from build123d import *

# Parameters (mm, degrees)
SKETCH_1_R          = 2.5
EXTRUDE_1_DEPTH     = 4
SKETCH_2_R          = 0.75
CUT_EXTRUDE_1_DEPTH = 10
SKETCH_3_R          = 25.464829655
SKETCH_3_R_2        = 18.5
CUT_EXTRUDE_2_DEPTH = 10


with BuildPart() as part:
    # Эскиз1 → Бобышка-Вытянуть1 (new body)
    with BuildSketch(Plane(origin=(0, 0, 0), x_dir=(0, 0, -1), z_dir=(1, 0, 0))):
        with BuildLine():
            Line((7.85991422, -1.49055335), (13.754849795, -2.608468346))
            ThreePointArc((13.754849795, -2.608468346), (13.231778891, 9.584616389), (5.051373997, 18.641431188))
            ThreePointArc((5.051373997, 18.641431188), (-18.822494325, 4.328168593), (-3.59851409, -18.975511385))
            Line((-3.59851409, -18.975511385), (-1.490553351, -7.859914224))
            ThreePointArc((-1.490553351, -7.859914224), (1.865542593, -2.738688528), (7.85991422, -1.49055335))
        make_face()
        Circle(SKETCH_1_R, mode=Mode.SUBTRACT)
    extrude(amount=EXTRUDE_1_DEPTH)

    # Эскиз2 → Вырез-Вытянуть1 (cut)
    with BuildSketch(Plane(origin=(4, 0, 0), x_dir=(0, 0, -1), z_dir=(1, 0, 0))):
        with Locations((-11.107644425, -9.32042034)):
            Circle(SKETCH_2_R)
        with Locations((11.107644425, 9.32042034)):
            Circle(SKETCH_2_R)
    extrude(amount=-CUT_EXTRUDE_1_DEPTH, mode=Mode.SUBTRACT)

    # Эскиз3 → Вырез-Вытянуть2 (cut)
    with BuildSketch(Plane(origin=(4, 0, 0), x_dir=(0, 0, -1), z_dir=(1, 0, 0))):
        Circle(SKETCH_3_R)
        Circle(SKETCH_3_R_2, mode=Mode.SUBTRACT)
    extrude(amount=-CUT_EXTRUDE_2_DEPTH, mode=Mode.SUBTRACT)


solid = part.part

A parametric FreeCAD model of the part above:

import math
import FreeCAD as App
import Part
import Sketcher
from FreeCAD import Vector
Q = App.Units.Quantity

doc = App.newDocument("Part")
body = doc.addObject("PartDesign::Body", "Body")

# Sketch on YZ plane
sketch1 = doc.addObject("Sketcher::SketchObject", "Sketch")
body.addObject(sketch1)
sketch1.AttachmentSupport = (doc.YZ_Plane, [""])
sketch1.MapMode = "FlatFace"
sketch1.addGeometry(Part.LineSegment(Vector(-1.490553, -7.859914, 0), Vector(-2.608468, -13.75485, 0)), False)
sketch1.addGeometry(Part.ArcOfCircle(Part.Circle(Vector(2.762286, 3.425226, 0), Vector(0, 0, 1), 18), math.radians(-107.360042), math.radians(-28.094176)), False)
sketch1.addGeometry(Part.ArcOfCircle(Part.Circle(Vector(0, 0, 0), Vector(0, 0, 1), 19.313708), math.radians(-15.161665), math.radians(169.261948)), False)
sketch1.addGeometry(Part.LineSegment(Vector(-18.975511, 3.598514, 0), Vector(-7.859914, 1.490553, 0)), False)
sketch1.addGeometry(Part.ArcOfCircle(Part.Circle(Vector(-9.350468, -6.369361, 0), Vector(0, 0, 1), 8), math.radians(-10.738053), math.radians(79.261948)), False)
sketch1.addGeometry(Part.Circle(Vector(0, 0, 0), Vector(0, 0, 1), 2.5), False)
sketch1.addConstraint(Sketcher.Constraint("Coincident", 0, 2, 1, 1))
sketch1.addConstraint(Sketcher.Constraint("Coincident", 1, 2, 2, 1))
sketch1.addConstraint(Sketcher.Constraint("Coincident", 2, 2, 3, 1))
sketch1.addConstraint(Sketcher.Constraint("Tangent", 3, 2, 4, 2))
sketch1.addConstraint(Sketcher.Constraint("Tangent", 4, 1, 0, 1))
sketch1.addConstraint(Sketcher.Constraint("Coincident", 2, 3, -1, 1))
sketch1.addConstraint(Sketcher.Constraint("Coincident", 5, 3, -1, 1))
sketch1.addConstraint(Sketcher.Constraint("Perpendicular", 0, 3))
sketch1.addConstraint(Sketcher.Constraint("Diameter", 5, Q("5 mm")))
sketch1.addConstraint(Sketcher.Constraint("Radius", 1, Q("18 mm")))
sketch1.addConstraint(Sketcher.Constraint("Radius", 4, Q("8 mm")))
sketch1.addConstraint(Sketcher.Constraint("Distance", 0, Q("6 mm")))
sketch1.addConstraint(Sketcher.Constraint("Radius", 2, Q("19.313708 mm")))
sketch1.addConstraint(Sketcher.Constraint("DistanceX", 4, 3, 0, 2, Q("6.741999 mm")))
sketch1.addConstraint(Sketcher.Constraint("DistanceY", 1, 2, 1, 3, Q("8.4766 mm")))
sketch1.addConstraint(Sketcher.Constraint("DistanceX", 0, 2, 1, 2, Q("21.2499 mm")))
sketch1.addConstraint(Sketcher.Constraint("Distance", 3, Q("11.313708 mm")))
pad1 = doc.addObject("PartDesign::Pad", "Pad")
body.addObject(pad1)
pad1.Profile = sketch1
pad1.Length = 4

# Sketch on YZ plane
sketch2 = doc.addObject("Sketcher::SketchObject", "Sketch001")
body.addObject(sketch2)
sketch2.AttachmentSupport = (doc.YZ_Plane, [""])
sketch2.MapMode = "FlatFace"
sketch2.AttachmentOffset = App.Placement(Vector(0, 0, 4), App.Rotation())
sketch2.addGeometry(Part.Circle(Vector(-9.32042, 11.107644, 0), Vector(0, 0, 1), 0.75), False)
sketch2.addGeometry(Part.Circle(Vector(9.32042, -11.107644, 0), Vector(0, 0, 1), 0.75), False)
sketch2.addConstraint(Sketcher.Constraint("Equal", 0, 1))
sketch2.addConstraint(Sketcher.Constraint("Symmetric", 0, 3, 1, 3, -1, 1))
sketch2.addConstraint(Sketcher.Constraint("Diameter", 0, Q("1.5 mm")))
sketch2.addConstraint(Sketcher.Constraint("DistanceX", 0, 3, -1, 1, Q("9.32042 mm")))
sketch2.addConstraint(Sketcher.Constraint("DistanceY", 1, 3, 0, 3, Q("22.215289 mm")))
pocket1 = doc.addObject("PartDesign::Pocket", "Pocket")
body.addObject(pocket1)
pocket1.Profile = sketch2
pocket1.Length = 10

# Sketch on YZ plane
sketch3 = doc.addObject("Sketcher::SketchObject", "Sketch002")
body.addObject(sketch3)
sketch3.AttachmentSupport = (doc.YZ_Plane, [""])
sketch3.MapMode = "FlatFace"
sketch3.AttachmentOffset = App.Placement(Vector(0, 0, 4), App.Rotation())
sketch3.addGeometry(Part.Circle(Vector(0, 0, 0), Vector(0, 0, 1), 25.46483), False)
sketch3.addGeometry(Part.Circle(Vector(0, 0, 0), Vector(0, 0, 1), 18.5), False)
sketch3.addConstraint(Sketcher.Constraint("Coincident", 0, 3, -1, 1))
sketch3.addConstraint(Sketcher.Constraint("Coincident", 1, 3, -1, 1))
sketch3.addConstraint(Sketcher.Constraint("Diameter", 1, Q("37 mm")))
sketch3.addConstraint(Sketcher.Constraint("Diameter", 0, Q("50.929659 mm")))
pocket2 = doc.addObject("PartDesign::Pocket", "Pocket001")
body.addObject(pocket2)
pocket2.Profile = sketch3
pocket2.Length = 10

doc.recompute()
